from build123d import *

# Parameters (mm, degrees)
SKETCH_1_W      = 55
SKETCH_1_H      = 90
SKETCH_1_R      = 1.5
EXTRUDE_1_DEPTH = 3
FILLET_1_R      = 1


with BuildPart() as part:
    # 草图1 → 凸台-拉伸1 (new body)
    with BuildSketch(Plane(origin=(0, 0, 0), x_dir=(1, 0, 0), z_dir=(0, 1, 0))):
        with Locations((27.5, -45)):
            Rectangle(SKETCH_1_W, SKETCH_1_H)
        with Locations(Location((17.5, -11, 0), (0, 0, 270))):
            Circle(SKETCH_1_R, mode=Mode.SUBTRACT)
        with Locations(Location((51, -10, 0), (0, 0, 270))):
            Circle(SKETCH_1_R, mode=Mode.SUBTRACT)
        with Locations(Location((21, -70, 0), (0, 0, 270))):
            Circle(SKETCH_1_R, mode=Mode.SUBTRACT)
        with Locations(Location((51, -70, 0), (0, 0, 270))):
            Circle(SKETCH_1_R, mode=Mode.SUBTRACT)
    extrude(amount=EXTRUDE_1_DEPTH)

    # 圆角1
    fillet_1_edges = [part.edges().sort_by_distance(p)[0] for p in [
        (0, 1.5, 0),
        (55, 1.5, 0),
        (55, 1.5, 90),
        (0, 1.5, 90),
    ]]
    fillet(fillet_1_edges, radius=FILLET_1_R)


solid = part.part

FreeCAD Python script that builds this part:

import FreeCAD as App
import Part
import Sketcher

V = App.Vector
Q = App.Units.Quantity


def edges_at(feature, points):
    """Names of the edges that pass closest to the given points."""
    edges = feature.Shape.Edges
    near = lambda p: min(range(len(edges)), key=lambda i: edges[i].distToShape(Part.Vertex(*p))[0])
    return sorted({f"Edge{near(p) + 1}" for p in points})

doc = App.newDocument("Part")
body = doc.addObject("PartDesign::Body", "Body")

sketch1 = doc.addObject("Sketcher::SketchObject", "Sketch")
body.addObject(sketch1)
sketch1.AttachmentSupport = (doc.XZ_Plane, [""])
sketch1.MapMode = "FlatFace"
sketch1.addGeometry([
    Part.LineSegment(V(0, 0, 0), V(0, 90, 0)),
    Part.LineSegment(V(0, 90, 0), V(55, 90, 0)),
    Part.LineSegment(V(55, 90, 0), V(55, 0, 0)),
    Part.LineSegment(V(55, 0, 0), V(0, 0, 0)),
    Part.Circle(V(21, 70, 0), V(0, 0, 1), 1.5),
    Part.Circle(V(51, 70, 0), V(0, 0, 1), 1.5),
    Part.Circle(V(17.5, 11, 0), V(0, 0, 1), 1.5),
    Part.Circle(V(51, 10, 0), V(0, 0, 1), 1.5),
], False)
sketch1.addConstraint([
    Sketcher.Constraint("Coincident", 0, 2, 1, 1),
    Sketcher.Constraint("Coincident", 1, 2, 2, 1),
    Sketcher.Constraint("Coincident", 2, 2, 3, 1),
    Sketcher.Constraint("Coincident", 3, 2, 0, 1),
    Sketcher.Constraint("Vertical", 0),
    Sketcher.Constraint("Horizontal", 1),
    Sketcher.Constraint("Vertical", 2),
    Sketcher.Constraint("Horizontal", 3),
    Sketcher.Constraint("Coincident", 3, 2, -1, 1),
    Sketcher.Constraint("Equal", 4, 5),
    Sketcher.Constraint("Equal", 5, 6),
    Sketcher.Constraint("Equal", 6, 7),
    Sketcher.Constraint("Horizontal", 4, 3, 5, 3),
    Sketcher.Constraint("Vertical", 5, 3, 7, 3),
    Sketcher.Constraint("Diameter", 4, Q("3 mm")),
    Sketcher.Constraint("DistanceX", 1, 1, 1, 2, Q("55 mm")),
    Sketcher.Constraint("DistanceY", 0, 1, 0, 2, Q("90 mm")),
    Sketcher.Constraint("DistanceX", -1, 1, 4, 3, Q("21 mm")),
    Sketcher.Constraint("DistanceY", -1, 1, 4, 3, Q("70 mm")),
    Sketcher.Constraint("DistanceX", -1, 1, 5, 3, Q("51 mm")),
    Sketcher.Constraint("DistanceY", -1, 1, 6, 3, Q("11 mm")),
    Sketcher.Constraint("DistanceY", -1, 1, 7, 3, Q("10 mm")),
    Sketcher.Constraint("DistanceX", -1, 1, 6, 3, Q("17.5 mm")),
])
pad1 = doc.addObject("PartDesign::Pad", "Pad")
body.addObject(pad1)
pad1.Profile = sketch1
pad1.Length = 3
pad1.Reversed = True
doc.recompute()

fillet = doc.addObject("PartDesign::Fillet", "Fillet")
body.addObject(fillet)
fillet.Base = (pad1, edges_at(pad1, [
    (0, 1.5, 0),
    (55, 1.5, 0),
    (55, 1.5, 90),
    (0, 1.5, 90),
]))
fillet.Radius = 1

doc.recompute()
